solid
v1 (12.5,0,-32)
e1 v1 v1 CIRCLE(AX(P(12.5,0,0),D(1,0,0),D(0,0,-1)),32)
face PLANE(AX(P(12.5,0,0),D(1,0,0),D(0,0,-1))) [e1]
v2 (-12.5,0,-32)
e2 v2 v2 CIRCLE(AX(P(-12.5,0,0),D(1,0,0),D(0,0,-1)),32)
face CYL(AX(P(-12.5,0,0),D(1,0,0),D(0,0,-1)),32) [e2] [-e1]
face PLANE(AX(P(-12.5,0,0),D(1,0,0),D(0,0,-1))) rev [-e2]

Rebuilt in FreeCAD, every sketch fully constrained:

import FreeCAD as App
import Part
import Sketcher
from FreeCAD import Vector

doc = App.newDocument("Part")
body = doc.addObject("PartDesign::Body", "Body")

sketch1 = body.newObject("Sketcher::SketchObject", "Sketch")
sketch1.AttachmentSupport = (doc.getObject("YZ_Plane"), [""])
sketch1.MapMode = "FlatFace"
sketch1.addGeometry(Part.Circle(Vector(0, 0, 0), Vector(0, 0, 1), 32), False)
sketch1.addConstraint([
    Sketcher.Constraint("Coincident", 0, 3, -1, 1),
    Sketcher.Constraint("Diameter", 0, 64.0),
])
pad1 = body.newObject("PartDesign::Pad", "Pad")
pad1.Profile = sketch1
pad1.Type = "TwoLengths"
pad1.Length = 12.5
pad1.Length2 = 12.5

doc.recompute()
